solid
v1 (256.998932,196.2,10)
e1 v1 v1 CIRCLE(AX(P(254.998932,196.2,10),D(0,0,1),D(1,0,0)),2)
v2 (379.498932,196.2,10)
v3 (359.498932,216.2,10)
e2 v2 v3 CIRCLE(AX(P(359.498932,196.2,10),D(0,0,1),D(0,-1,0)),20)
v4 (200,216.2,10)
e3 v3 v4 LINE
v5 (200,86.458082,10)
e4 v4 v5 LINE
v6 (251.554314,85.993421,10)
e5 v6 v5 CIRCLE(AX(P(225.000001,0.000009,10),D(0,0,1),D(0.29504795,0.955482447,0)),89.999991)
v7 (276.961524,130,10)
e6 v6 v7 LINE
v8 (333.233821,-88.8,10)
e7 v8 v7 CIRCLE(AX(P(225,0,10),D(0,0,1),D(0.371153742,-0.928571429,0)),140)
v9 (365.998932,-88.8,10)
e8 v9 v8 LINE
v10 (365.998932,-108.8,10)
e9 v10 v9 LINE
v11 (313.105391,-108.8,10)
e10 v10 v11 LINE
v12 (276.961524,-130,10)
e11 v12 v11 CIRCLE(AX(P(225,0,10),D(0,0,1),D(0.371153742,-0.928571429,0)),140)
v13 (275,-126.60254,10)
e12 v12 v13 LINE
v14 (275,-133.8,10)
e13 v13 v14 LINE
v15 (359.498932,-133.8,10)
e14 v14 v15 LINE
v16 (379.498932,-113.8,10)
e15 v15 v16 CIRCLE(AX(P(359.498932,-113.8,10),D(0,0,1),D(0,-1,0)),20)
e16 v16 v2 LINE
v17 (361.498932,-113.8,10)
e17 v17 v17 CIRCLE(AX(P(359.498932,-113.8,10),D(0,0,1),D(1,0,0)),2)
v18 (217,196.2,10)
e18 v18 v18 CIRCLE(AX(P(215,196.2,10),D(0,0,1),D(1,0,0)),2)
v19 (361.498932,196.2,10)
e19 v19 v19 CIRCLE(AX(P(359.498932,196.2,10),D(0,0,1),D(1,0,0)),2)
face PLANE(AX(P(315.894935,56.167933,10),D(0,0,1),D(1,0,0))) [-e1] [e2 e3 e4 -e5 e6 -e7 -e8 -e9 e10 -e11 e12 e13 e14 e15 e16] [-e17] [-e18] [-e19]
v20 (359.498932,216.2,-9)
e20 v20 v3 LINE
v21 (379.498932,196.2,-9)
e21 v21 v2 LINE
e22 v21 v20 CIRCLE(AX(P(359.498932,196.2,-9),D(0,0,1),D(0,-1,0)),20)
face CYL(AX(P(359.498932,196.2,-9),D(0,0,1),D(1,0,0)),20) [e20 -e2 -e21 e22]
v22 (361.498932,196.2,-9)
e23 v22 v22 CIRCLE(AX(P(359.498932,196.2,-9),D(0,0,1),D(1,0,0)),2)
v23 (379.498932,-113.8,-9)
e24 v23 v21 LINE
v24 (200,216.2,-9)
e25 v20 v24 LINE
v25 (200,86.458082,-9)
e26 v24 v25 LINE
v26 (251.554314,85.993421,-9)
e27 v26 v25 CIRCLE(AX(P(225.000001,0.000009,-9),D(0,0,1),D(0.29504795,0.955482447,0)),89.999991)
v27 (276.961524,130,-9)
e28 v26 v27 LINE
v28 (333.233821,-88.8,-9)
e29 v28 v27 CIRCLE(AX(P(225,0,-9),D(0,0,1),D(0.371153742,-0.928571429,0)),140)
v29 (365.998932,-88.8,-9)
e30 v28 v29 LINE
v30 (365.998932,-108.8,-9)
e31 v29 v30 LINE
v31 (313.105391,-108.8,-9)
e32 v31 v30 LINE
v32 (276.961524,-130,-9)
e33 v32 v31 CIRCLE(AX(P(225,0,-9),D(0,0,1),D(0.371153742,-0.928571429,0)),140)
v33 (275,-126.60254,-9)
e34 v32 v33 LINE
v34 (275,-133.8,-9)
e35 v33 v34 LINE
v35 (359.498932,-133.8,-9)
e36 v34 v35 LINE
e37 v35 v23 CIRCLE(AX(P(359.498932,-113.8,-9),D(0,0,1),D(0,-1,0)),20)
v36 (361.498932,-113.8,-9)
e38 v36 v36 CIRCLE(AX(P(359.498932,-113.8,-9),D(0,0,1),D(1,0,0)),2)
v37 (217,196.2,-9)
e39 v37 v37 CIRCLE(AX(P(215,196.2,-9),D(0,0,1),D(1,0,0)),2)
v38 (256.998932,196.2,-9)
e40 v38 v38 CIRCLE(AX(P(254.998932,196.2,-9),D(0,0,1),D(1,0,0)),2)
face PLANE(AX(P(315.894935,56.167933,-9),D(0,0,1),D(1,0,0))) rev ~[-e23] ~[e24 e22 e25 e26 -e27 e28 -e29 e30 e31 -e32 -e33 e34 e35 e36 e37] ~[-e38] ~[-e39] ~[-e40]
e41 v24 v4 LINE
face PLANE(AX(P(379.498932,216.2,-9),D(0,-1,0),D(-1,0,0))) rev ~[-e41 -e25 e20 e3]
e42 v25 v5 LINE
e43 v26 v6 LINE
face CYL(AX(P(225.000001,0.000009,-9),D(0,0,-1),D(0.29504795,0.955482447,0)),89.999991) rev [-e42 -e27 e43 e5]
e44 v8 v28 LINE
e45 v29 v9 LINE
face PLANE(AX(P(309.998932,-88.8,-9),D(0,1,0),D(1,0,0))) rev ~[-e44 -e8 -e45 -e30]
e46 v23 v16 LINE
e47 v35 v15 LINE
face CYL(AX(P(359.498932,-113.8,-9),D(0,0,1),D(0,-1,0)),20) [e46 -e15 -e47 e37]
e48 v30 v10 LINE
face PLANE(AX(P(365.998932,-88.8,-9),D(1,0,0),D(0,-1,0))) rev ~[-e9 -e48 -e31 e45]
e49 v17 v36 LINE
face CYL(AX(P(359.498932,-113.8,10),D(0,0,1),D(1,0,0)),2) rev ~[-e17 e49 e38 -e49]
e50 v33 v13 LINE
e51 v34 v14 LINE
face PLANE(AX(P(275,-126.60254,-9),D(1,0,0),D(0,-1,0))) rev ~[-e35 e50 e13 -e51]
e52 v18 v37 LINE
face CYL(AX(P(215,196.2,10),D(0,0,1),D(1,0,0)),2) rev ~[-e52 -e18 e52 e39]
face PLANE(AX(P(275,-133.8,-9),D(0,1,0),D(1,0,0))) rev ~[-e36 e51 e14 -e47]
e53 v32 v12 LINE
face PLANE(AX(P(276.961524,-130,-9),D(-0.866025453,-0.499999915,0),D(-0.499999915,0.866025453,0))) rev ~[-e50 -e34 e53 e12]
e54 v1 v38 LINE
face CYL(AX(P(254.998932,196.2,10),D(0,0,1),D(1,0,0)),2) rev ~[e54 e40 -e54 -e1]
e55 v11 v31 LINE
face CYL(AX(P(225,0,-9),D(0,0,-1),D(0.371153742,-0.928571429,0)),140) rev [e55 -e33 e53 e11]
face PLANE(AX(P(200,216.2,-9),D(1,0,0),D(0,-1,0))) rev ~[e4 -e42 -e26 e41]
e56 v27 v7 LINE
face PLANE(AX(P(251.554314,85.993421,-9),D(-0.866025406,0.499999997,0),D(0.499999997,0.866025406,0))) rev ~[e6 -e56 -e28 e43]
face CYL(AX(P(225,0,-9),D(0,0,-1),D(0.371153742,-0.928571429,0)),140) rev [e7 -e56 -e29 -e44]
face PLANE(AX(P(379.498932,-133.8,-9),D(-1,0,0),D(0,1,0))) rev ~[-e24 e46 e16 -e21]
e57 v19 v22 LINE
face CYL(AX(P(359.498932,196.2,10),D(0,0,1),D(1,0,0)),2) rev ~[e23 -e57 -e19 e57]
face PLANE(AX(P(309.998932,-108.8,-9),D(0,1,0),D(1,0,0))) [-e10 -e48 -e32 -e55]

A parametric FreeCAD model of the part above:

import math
import FreeCAD as App
import Part
import Sketcher

V = App.Vector
Q = App.Units.Quantity


def edges_at(feature, points):
    """Names of the edges that pass closest to the given points."""
    edges = feature.Shape.Edges
    near = lambda p: min(range(len(edges)), key=lambda i: edges[i].distToShape(Part.Vertex(*p))[0])
    return sorted({f"Edge{near(p) + 1}" for p in points})


def add_polygon(sketch, points):
    """Adds a closed chain of lines whose ends are joined by coincident constraints."""
    first, n = sketch.GeometryCount, len(points)
    for a, b in zip(points, points[1:] + points[:1]):
        sketch.addGeometry(Part.LineSegment(App.Vector(*a, 0), App.Vector(*b, 0)), False)
    for i in range(n):
        sketch.addConstraint(Sketcher.Constraint("Coincident", first + i, 2, first + (i + 1) % n, 1))

doc = App.newDocument("Part")
body = doc.addObject("PartDesign::Body", "Body")

# Sketch on XY plane
sketch1 = doc.addObject("Sketcher::SketchObject", "Sketch")
body.addObject(sketch1)
sketch1.AttachmentSupport = (doc.XY_Plane, [""])
sketch1.MapMode = "FlatFace"
sketch1.addGeometry(Part.LineSegment(V(200, 216.2, 0), V(200, 86.458082, 0)), False)
sketch1.addGeometry(Part.ArcOfCircle(Part.Circle(V(225.000001, 0.000009, 0), V(0, 0, 1), 89.999991), math.radians(72.839587), math.radians(106.127623)), False)
sketch1.addGeometry(Part.LineSegment(V(251.554314, 85.993421, 0), V(276.961524, 130, 0)), False)
sketch1.addGeometry(Part.ArcOfCircle(Part.Circle(V(225, 0, 0), V(0, 0, 1), 140), math.radians(-68.213211), math.radians(68.213211)), False)
sketch1.addGeometry(Part.LineSegment(V(276.961524, -130, 0), V(275, -126.60254, 0)), False)
sketch1.addGeometry(Part.LineSegment(V(275, -126.60254, 0), V(275, -133.8, 0)), False)
sketch1.addGeometry(Part.LineSegment(V(275, -133.8, 0), V(379.498932, -133.8, 0)), False)
sketch1.addGeometry(Part.LineSegment(V(379.498932, -133.8, 0), V(379.498932, 216.2, 0)), False)
sketch1.addGeometry(Part.LineSegment(V(379.498932, 216.2, 0), V(200, 216.2, 0)), False)
sketch1.addConstraint(Sketcher.Constraint("Coincident", 0, 2, 1, 2))
sketch1.addConstraint(Sketcher.Constraint("Coincident", 1, 1, 2, 1))
sketch1.addConstraint(Sketcher.Constraint("Coincident", 2, 2, 3, 2))
sketch1.addConstraint(Sketcher.Constraint("Coincident", 3, 1, 4, 1))
sketch1.addConstraint(Sketcher.Constraint("Coincident", 4, 2, 5, 1))
sketch1.addConstraint(Sketcher.Constraint("Coincident", 5, 2, 6, 1))
sketch1.addConstraint(Sketcher.Constraint("Coincident", 6, 2, 7, 1))
sketch1.addConstraint(Sketcher.Constraint("Coincident", 7, 2, 8, 1))
sketch1.addConstraint(Sketcher.Constraint("Coincident", 8, 2, 0, 1))
sketch1.addConstraint(Sketcher.Constraint("Vertical", 0))
sketch1.addConstraint(Sketcher.Constraint("Vertical", 5))
sketch1.addConstraint(Sketcher.Constraint("Horizontal", 6))
sketch1.addConstraint(Sketcher.Constraint("Vertical", 7))
sketch1.addConstraint(Sketcher.Constraint("Horizontal", 8))
sketch1.addConstraint(Sketcher.Constraint("Coincident", 3, 3, 1, 3))
sketch1.addConstraint(Sketcher.Constraint("Symmetric", 2, 2, 3, 1, -1))
sketch1.addConstraint(Sketcher.Constraint("Radius", 3, 140.0))
sketch1.addConstraint(Sketcher.Constraint("DistanceY", 7, 1, 7, 2, 350.0))
sketch1.addConstraint(Sketcher.Constraint("Angle", 2, Q("60 deg")))
sketch1.addConstraint(Sketcher.Constraint("Angle", 4, Q("119.999994 deg")))
sketch1.addConstraint(Sketcher.Constraint("DistanceX", -1, 1, 1, 3, 225.000001))
sketch1.addConstraint(Sketcher.Constraint("DistanceX", -1, 1, 0, 2, 200.0))
sketch1.addConstraint(Sketcher.Constraint("DistanceY", -1, 1, 2, 2, 130.0))
sketch1.addConstraint(Sketcher.Constraint("DistanceX", -1, 1, 4, 2, 275.0))
sketch1.addConstraint(Sketcher.Constraint("DistanceY", 5, 2, -1, 1, 133.8))
sketch1.addConstraint(Sketcher.Constraint("Radius", 1, 89.999991))
sketch1.addConstraint(Sketcher.Constraint("DistanceX", 6, 1, 6, 2, 104.498932))
pad1 = doc.addObject("PartDesign::Pad", "Pad")
body.addObject(pad1)
pad1.Profile = sketch1
pad1.Length = 19
doc.recompute()

fillet = doc.addObject("PartDesign::Fillet", "Fillet")
body.addObject(fillet)
fillet.Base = (pad1, edges_at(pad1, [(379.499, 216.2, 9.5), (379.499, -133.8, 9.5)]))
fillet.Radius = 20

# Sketch on XY plane
sketch2 = doc.addObject("Sketcher::SketchObject", "Sketch001")
body.addObject(sketch2)
sketch2.AttachmentSupport = (doc.XY_Plane, [""])
sketch2.MapMode = "FlatFace"
sketch2.AttachmentOffset = App.Placement(V(0, 0, 19), App.Rotation())
sketch2.addGeometry(Part.Circle(V(215, 196.2, 0), V(0, 0, 1), 2), False)
sketch2.addConstraint(Sketcher.Constraint("Diameter", 0, 4.0))
sketch2.addConstraint(Sketcher.Constraint("DistanceX", -1, 1, 0, 3, 215.0))
sketch2.addConstraint(Sketcher.Constraint("DistanceY", -1, 1, 0, 3, 196.2))
pocket1 = doc.addObject("PartDesign::Pocket", "Pocket")
body.addObject(pocket1)
pocket1.Profile = sketch2
pocket1.Type = "ThroughAll"

# Sketch on XY plane
sketch3 = doc.addObject("Sketcher::SketchObject", "Sketch002")
body.addObject(sketch3)
sketch3.AttachmentSupport = (doc.XY_Plane, [""])
sketch3.MapMode = "FlatFace"
sketch3.AttachmentOffset = App.Placement(V(0, 0, 19), App.Rotation())
sketch3.addGeometry(Part.Circle(V(254.998932, 196.2, 0), V(0, 0, 1), 2), False)
sketch3.addGeometry(Part.Circle(V(359.498932, 196.2, 0), V(0, 0, 1), 2), False)
sketch3.addGeometry(Part.Circle(V(359.498932, -113.8, 0), V(0, 0, 1), 2), False)
sketch3.addConstraint(Sketcher.Constraint("Equal", 0, 1))
sketch3.addConstraint(Sketcher.Constraint("Equal", 1, 2))
sketch3.addConstraint(Sketcher.Constraint("Horizontal", 0, 3, 1, 3))
sketch3.addConstraint(Sketcher.Constraint("Vertical", 1, 3, 2, 3))
sketch3.addConstraint(Sketcher.Constraint("Diameter", 0, 4.0))
sketch3.addConstraint(Sketcher.Constraint("DistanceY", 2, 3, 1, 3, 310.0))
sketch3.addConstraint(Sketcher.Constraint("DistanceY", -1, 1, 0, 3, 196.2))
sketch3.addConstraint(Sketcher.Constraint("DistanceX", 0, 3, 1, 3, 104.5))
sketch3.addConstraint(Sketcher.Constraint("DistanceX", -1, 1, 0, 3, 254.998932))
pocket2 = doc.addObject("PartDesign::Pocket", "Pocket001")
body.addObject(pocket2)
pocket2.Profile = sketch3
pocket2.Type = "ThroughAll"

# Sketch on XY plane
sketch4 = doc.addObject("Sketcher::SketchObject", "Sketch003")
body.addObject(sketch4)
sketch4.AttachmentSupport = (doc.XY_Plane, [""])
sketch4.MapMode = "FlatFace"
add_polygon(sketch4, [(309.998932, -108.8), (309.998932, -88.8), (365.998932, -88.8), (365.998932, -108.8)])  # lines 0-3
sketch4.addConstraint(Sketcher.Constraint("Vertical", 0))
sketch4.addConstraint(Sketcher.Constraint("Horizontal", 1))
sketch4.addConstraint(Sketcher.Constraint("Vertical", 2))
sketch4.addConstraint(Sketcher.Constraint("Horizontal", 3))
sketch4.addConstraint(Sketcher.Constraint("DistanceX", 1, 1, 1, 2, 56.0))
sketch4.addConstraint(Sketcher.Constraint("DistanceY", 0, 1, 0, 2, 20.0))
sketch4.addConstraint(Sketcher.Constraint("DistanceY", 0, 2, -1, 1, 88.8))
sketch4.addConstraint(Sketcher.Constraint("DistanceX", -1, 1, 0, 2, 309.998932))
pocket3 = doc.addObject("PartDesign::Pocket", "Pocket002")
body.addObject(pocket3)
pocket3.Profile = sketch4
pocket3.Type = "ThroughAll"
pocket3.Reversed = True
body2 = doc.addObject("PartDesign::Body", "Body001")
doc.recompute()

body.Placement = App.Placement(V(0, 0, -9), App.Rotation(V(0, 0, 1), 0))
boolean = doc.addObject("PartDesign::Boolean", "Boolean")
body2.addObject(boolean)
boolean.Type = "Fuse"
boolean.addObjects([body])

doc.recompute()
